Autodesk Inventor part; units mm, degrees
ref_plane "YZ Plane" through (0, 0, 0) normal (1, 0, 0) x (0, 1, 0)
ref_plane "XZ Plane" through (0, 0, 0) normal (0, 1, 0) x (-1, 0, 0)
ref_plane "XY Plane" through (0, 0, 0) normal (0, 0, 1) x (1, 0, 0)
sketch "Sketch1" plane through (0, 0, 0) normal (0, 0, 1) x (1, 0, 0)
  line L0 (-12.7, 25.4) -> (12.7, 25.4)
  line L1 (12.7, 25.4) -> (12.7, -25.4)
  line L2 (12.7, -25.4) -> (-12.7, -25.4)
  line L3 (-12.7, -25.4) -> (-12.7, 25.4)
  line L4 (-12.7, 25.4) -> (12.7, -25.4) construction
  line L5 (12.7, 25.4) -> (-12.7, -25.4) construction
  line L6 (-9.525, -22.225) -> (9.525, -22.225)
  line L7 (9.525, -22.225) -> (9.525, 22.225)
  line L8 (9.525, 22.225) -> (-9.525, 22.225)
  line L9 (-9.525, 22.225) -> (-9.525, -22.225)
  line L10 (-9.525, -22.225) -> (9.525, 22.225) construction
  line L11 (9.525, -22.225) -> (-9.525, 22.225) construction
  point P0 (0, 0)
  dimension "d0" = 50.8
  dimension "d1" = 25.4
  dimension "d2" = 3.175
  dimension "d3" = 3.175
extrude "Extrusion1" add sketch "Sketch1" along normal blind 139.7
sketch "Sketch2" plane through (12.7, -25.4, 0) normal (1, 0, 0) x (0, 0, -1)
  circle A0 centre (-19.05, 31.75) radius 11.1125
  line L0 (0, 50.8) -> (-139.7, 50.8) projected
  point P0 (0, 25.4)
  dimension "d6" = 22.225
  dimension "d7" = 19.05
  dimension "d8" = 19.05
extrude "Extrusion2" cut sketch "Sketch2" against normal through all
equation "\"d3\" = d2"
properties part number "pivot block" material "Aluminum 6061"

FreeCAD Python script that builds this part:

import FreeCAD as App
import Part
import Sketcher

V = App.Vector
Q = App.Units.Quantity


def add_polygon(sketch, points):
    """Adds a closed chain of lines whose ends are joined by coincident constraints."""
    first, n = sketch.GeometryCount, len(points)
    for a, b in zip(points, points[1:] + points[:1]):
        sketch.addGeometry(Part.LineSegment(App.Vector(*a, 0), App.Vector(*b, 0)), False)
    for i in range(n):
        sketch.addConstraint(Sketcher.Constraint("Coincident", first + i, 2, first + (i + 1) % n, 1))

doc = App.newDocument("Part")
params = doc.addObject("Spreadsheet::Sheet", "Params")
for row, (alias, value) in enumerate([
    ("sketch1_width", "1 in"),
    ("sketch1_height", "2 in"),
    ("pad1_length", "5.5 in"),
    ("sketch2_diameter", "0.875 in"),
], start=1):
    params.set(f"A{row}", alias)
    params.set(f"B{row}", "=" + value)
    params.setAlias(f"B{row}", alias)

body = doc.addObject("PartDesign::Body", "Body")

# Sketch on XY plane
sketch1 = doc.addObject("Sketcher::SketchObject", "Sketch")
body.addObject(sketch1)
sketch1.AttachmentSupport = (doc.XY_Plane, [""])
sketch1.MapMode = "FlatFace"
add_polygon(sketch1, [(12.7, 25.4), (-12.7, 25.4), (-12.7, -25.4), (12.7, -25.4)])  # lines 0-3
add_polygon(sketch1, [(9.525, -22.225), (-9.525, -22.225), (-9.525, 22.225), (9.525, 22.225)])  # lines 4-7
sketch1.addConstraint(Sketcher.Constraint("Horizontal", 0))
sketch1.addConstraint(Sketcher.Constraint("Vertical", 1))
sketch1.addConstraint(Sketcher.Constraint("Horizontal", 2))
sketch1.addConstraint(Sketcher.Constraint("Vertical", 3))
sketch1.addConstraint(Sketcher.Constraint("Horizontal", 4))
sketch1.addConstraint(Sketcher.Constraint("Vertical", 5))
sketch1.addConstraint(Sketcher.Constraint("Horizontal", 6))
sketch1.addConstraint(Sketcher.Constraint("Vertical", 7))
sketch1.addConstraint(Sketcher.Constraint("Symmetric", 0, 2, 2, 2, -1, 1))
sketch1.addConstraint(Sketcher.Constraint("Symmetric", 4, 2, 6, 2, -1, 1))
sketch1.addConstraint(Sketcher.Constraint("DistanceX", 0, 2, 0, 1, Q("1 in")))
sketch1.addConstraint(Sketcher.Constraint("DistanceY", 1, 2, 1, 1, Q("2 in")))
sketch1.addConstraint(Sketcher.Constraint("DistanceX", 1, 2, 4, 2, Q("0.125 in")))
sketch1.addConstraint(Sketcher.Constraint("DistanceY", 1, 2, 4, 2, Q("0.125 in")))
sketch1.setExpression("Constraints[18]", "Params.sketch1_width")
sketch1.setExpression("Constraints[19]", "Params.sketch1_height")
pad1 = doc.addObject("PartDesign::Pad", "Pad")
body.addObject(pad1)
pad1.Profile = sketch1
pad1.setExpression("Length", "Params.pad1_length")

# Sketch on YZ plane
sketch2 = doc.addObject("Sketcher::SketchObject", "Sketch001")
body.addObject(sketch2)
sketch2.AttachmentSupport = (doc.YZ_Plane, [""])
sketch2.MapMode = "FlatFace"
sketch2.AttachmentOffset = App.Placement(V(0, 0, 0.5 * 25.4), App.Rotation())
sketch2.addGeometry(Part.Circle(V(6.35, 19.05, 0), V(0, 0, 1), 11.1125), False)
sketch2.addConstraint(Sketcher.Constraint("Diameter", 0, Q("0.875 in")))
sketch2.addConstraint(Sketcher.Constraint("DistanceY", -1, 1, 0, 3, Q("0.75 in")))
sketch2.addConstraint(Sketcher.Constraint("DistanceX", -1, 1, 0, 3, Q("0.25 in")))
sketch2.setExpression("Constraints[0]", "Params.sketch2_diameter")
pocket1 = doc.addObject("PartDesign::Pocket", "Pocket")
body.addObject(pocket1)
pocket1.Profile = sketch2
pocket1.Type = "ThroughAll"

doc.recompute()
